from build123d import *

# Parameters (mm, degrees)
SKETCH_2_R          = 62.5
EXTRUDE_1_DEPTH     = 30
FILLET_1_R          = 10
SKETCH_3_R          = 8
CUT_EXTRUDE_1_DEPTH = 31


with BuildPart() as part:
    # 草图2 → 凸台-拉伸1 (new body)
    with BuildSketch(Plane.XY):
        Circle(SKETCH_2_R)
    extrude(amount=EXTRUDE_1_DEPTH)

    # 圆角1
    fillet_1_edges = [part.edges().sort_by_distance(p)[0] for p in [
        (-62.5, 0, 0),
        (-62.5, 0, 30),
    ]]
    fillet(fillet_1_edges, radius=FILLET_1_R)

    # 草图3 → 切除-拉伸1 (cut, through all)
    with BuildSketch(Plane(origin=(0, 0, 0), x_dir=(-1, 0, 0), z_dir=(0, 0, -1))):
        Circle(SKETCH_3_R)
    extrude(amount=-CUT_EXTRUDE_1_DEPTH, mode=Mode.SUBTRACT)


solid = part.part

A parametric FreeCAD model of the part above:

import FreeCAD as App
import Part
import Sketcher

V = App.Vector


def edges_at(feature, points):
    """Names of the edges that pass closest to the given points."""
    edges = feature.Shape.Edges
    near = lambda p: min(range(len(edges)), key=lambda i: edges[i].distToShape(Part.Vertex(*p))[0])
    return sorted({f"Edge{near(p) + 1}" for p in points})

doc = App.newDocument("Part")
body = doc.addObject("PartDesign::Body", "Body")

# Sketch on XY plane
sketch1 = body.newObject("Sketcher::SketchObject", "Sketch")
sketch1.AttachmentSupport = (doc.getObject("XY_Plane"), [""])
sketch1.MapMode = "FlatFace"
sketch1.addGeometry(Part.Circle(V(0, 0, 0), V(0, 0, 1), 62), False)
sketch1.addConstraint(Sketcher.Constraint("Coincident", 0, 3, -1, 1))
sketch1.addConstraint(Sketcher.Constraint("Diameter", 0, 125.0))
pad1 = body.newObject("PartDesign::Pad", "Pad")
pad1.Profile = sketch1
pad1.Length = 30
doc.recompute()

fillet = body.newObject("PartDesign::Fillet", "Fillet")
fillet.Base = (pad1, edges_at(pad1, [(-62.5, 0, 0), (-62.5, 0, 30)]))
fillet.Radius = 10

# Sketch on XY plane
sketch2 = body.newObject("Sketcher::SketchObject", "Sketch001")
sketch2.AttachmentSupport = (doc.getObject("XY_Plane"), [""])
sketch2.MapMode = "FlatFace"
sketch2.addGeometry(Part.Circle(V(0, 0, 0), V(0, 0, 1), 8), False)
sketch2.addConstraint(Sketcher.Constraint("Coincident", 0, 3, -1, 1))
sketch2.addConstraint(Sketcher.Constraint("Diameter", 0, 16.0))
pocket1 = body.newObject("PartDesign::Pocket", "Pocket")
pocket1.Profile = sketch2
pocket1.Type = "ThroughAll"
pocket1.Reversed = True

doc.recompute()
